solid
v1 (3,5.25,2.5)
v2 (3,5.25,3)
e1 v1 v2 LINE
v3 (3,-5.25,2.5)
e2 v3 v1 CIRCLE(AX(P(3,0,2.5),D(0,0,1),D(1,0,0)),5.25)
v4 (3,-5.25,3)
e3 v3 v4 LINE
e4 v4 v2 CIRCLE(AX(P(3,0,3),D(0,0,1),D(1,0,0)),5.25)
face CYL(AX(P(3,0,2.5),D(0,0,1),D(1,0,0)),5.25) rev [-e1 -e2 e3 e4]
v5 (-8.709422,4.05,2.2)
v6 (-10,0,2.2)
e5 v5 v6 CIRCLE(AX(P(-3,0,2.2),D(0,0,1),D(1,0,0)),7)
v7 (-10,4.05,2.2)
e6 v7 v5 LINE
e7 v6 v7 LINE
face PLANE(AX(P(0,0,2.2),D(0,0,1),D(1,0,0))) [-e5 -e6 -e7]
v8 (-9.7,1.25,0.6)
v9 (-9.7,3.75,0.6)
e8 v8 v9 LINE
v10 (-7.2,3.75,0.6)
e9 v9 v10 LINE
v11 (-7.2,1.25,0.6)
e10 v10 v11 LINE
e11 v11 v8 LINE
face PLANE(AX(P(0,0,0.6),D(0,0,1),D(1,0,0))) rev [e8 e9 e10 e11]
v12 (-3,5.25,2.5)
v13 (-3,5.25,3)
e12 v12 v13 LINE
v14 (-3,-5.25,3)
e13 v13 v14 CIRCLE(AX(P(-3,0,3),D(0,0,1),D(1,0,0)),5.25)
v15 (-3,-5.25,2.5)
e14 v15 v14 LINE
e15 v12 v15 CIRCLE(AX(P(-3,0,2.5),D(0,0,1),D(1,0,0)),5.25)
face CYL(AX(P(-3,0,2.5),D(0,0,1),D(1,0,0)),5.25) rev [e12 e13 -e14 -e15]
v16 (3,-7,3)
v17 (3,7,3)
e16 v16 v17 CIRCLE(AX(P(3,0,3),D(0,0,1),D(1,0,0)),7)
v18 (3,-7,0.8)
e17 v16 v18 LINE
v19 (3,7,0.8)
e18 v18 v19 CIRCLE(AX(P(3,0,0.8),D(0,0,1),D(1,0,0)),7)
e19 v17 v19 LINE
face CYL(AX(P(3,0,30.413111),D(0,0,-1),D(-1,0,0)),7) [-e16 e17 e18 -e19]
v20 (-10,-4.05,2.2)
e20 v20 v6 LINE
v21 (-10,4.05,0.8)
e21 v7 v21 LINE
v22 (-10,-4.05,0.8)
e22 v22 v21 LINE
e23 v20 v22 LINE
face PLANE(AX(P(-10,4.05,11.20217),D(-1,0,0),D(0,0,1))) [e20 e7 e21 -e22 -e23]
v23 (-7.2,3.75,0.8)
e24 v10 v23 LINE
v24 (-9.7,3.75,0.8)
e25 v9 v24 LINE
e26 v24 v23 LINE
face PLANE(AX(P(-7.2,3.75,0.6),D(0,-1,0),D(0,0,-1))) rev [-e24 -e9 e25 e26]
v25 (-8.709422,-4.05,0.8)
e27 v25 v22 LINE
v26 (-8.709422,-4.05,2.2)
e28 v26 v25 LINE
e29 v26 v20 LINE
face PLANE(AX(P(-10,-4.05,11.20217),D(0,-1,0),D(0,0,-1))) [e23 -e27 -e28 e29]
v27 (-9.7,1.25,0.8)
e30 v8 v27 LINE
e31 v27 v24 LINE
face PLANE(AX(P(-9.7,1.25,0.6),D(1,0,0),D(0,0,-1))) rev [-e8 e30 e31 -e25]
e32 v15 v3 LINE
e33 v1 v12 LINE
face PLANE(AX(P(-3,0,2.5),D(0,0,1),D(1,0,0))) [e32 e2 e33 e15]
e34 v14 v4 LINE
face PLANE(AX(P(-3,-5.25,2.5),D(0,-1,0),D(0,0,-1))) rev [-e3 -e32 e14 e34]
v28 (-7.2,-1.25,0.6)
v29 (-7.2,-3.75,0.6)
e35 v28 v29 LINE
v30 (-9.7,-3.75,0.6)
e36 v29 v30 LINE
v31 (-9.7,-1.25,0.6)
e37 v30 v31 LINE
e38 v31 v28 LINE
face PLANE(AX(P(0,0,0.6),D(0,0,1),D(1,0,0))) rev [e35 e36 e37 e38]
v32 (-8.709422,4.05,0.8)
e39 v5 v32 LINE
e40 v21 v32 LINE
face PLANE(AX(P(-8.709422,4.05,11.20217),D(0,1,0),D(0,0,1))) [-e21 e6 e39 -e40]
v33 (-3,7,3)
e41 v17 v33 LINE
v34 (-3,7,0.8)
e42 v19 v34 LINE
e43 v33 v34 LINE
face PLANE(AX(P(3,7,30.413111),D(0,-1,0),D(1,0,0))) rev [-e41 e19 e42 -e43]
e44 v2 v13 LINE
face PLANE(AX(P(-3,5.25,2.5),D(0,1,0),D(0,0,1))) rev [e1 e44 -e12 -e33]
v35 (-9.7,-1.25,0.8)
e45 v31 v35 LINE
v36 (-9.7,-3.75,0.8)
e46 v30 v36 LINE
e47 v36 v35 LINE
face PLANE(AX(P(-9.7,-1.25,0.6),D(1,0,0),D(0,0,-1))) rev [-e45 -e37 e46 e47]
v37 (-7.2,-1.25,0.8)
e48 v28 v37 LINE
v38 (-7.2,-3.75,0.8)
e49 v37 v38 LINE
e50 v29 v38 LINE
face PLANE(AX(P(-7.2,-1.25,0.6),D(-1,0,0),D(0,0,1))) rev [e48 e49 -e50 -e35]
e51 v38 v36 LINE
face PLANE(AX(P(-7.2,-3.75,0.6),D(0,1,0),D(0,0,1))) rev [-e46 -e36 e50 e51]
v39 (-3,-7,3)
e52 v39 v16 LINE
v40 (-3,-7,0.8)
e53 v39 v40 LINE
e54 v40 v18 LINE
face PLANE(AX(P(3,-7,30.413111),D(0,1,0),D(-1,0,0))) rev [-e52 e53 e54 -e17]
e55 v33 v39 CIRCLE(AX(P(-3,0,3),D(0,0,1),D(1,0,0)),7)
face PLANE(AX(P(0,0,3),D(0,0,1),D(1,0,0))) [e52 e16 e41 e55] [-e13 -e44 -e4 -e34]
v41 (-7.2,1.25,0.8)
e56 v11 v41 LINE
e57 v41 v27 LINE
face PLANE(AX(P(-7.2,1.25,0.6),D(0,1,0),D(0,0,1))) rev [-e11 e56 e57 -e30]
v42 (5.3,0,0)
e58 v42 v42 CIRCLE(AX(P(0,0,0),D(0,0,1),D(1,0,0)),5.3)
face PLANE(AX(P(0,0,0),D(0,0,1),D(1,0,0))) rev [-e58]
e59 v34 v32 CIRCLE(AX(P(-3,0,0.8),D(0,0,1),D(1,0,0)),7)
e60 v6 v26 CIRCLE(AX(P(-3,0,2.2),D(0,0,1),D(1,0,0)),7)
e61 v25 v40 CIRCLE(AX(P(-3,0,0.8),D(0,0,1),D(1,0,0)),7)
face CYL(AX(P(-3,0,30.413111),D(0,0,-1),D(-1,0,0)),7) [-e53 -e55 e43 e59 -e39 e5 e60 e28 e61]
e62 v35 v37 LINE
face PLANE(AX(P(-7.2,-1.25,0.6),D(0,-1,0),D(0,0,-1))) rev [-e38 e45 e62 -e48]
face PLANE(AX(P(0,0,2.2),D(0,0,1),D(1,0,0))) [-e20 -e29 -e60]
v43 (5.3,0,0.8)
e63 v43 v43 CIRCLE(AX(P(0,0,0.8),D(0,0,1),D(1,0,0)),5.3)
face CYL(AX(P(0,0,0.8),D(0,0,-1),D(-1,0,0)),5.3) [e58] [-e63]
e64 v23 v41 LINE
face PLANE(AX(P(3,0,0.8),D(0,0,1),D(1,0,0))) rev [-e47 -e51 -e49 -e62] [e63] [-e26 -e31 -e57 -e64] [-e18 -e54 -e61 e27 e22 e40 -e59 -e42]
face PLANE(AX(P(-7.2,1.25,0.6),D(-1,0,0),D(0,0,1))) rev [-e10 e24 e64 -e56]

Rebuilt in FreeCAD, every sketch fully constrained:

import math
import FreeCAD as App
import Part
import Sketcher

doc = App.newDocument("Part")
body = doc.addObject("PartDesign::Body", "Body")

sketch1 = body.newObject("Sketcher::SketchObject", "Sketch")
sketch1.AttachmentSupport = (doc.getObject("XY_Plane"), [""])
sketch1.MapMode = "FlatFace"
sketch1.addGeometry(Part.Circle(App.Vector(0, 0, 0), App.Vector(0, 0, 1), 5), False)
sketch1.addConstraint(Sketcher.Constraint("Coincident", 0, 3, -1, 1))
sketch1.addConstraint(Sketcher.Constraint("Diameter", 0, 10.6))
pad1 = body.newObject("PartDesign::Pad", "Pad")
pad1.Profile = sketch1
pad1.Length = 0.8

sketch2 = body.newObject("Sketcher::SketchObject", "Sketch001")
sketch2.AttachmentSupport = (doc.getObject("XY_Plane"), [""])
sketch2.MapMode = "FlatFace"
sketch2.AttachmentOffset = App.Placement(App.Vector(0, 0, 0.8), App.Rotation())
sketch2.addGeometry(Part.LineSegment(App.Vector(-3, -7, 0), App.Vector(3, -7, 0)), False)
sketch2.addGeometry(Part.ArcOfCircle(Part.Circle(App.Vector(3, 0, 0), App.Vector(0, 0, 1), 7), math.radians(-90), math.radians(90)), False)
sketch2.addGeometry(Part.LineSegment(App.Vector(3, 7, 0), App.Vector(-3, 7, 0)), False)
sketch2.addGeometry(Part.ArcOfCircle(Part.Circle(App.Vector(-3, 0, 0), App.Vector(0, 0, 1), 7), math.radians(90), math.radians(270)), False)
sketch2.addConstraint(Sketcher.Constraint("Tangent", 0, 2, 1, 1))
sketch2.addConstraint(Sketcher.Constraint("Tangent", 1, 2, 2, 1))
sketch2.addConstraint(Sketcher.Constraint("Tangent", 2, 2, 3, 1))
sketch2.addConstraint(Sketcher.Constraint("Tangent", 3, 2, 0, 1))
sketch2.addConstraint(Sketcher.Constraint("Horizontal", 0))
sketch2.addConstraint(Sketcher.Constraint("Horizontal", 2))
sketch2.addConstraint(Sketcher.Constraint("Symmetric", 1, 3, 3, 3, -1, 1))
sketch2.addConstraint(Sketcher.Constraint("Radius", 1, 7.0))
sketch2.addConstraint(Sketcher.Constraint("DistanceX", 0, 1, 0, 2, 6.0))
pad2 = body.newObject("PartDesign::Pad", "Pad001")
pad2.Profile = sketch2
pad2.Length = 2.2

sketch3 = body.newObject("Sketcher::SketchObject", "Sketch002")
sketch3.AttachmentSupport = (doc.getObject("XY_Plane"), [""])
sketch3.MapMode = "FlatFace"
sketch3.AttachmentOffset = App.Placement(App.Vector(0, 0, 3), App.Rotation())
sketch3.addGeometry(Part.LineSegment(App.Vector(3, 5, 0), App.Vector(-3, 5, 0)), False)
sketch3.addGeometry(Part.ArcOfCircle(Part.Circle(App.Vector(-3, 0, 0), App.Vector(0, 0, 1), 5), math.radians(90), math.radians(270)), False)
sketch3.addGeometry(Part.LineSegment(App.Vector(-3, -5, 0), App.Vector(3, -5, 0)), False)
sketch3.addGeometry(Part.ArcOfCircle(Part.Circle(App.Vector(3, 0, 0), App.Vector(0, 0, 1), 5), math.radians(-90), math.radians(90)), False)
sketch3.addConstraint(Sketcher.Constraint("Tangent", 0, 2, 1, 1))
sketch3.addConstraint(Sketcher.Constraint("Tangent", 1, 2, 2, 1))
sketch3.addConstraint(Sketcher.Constraint("Tangent", 2, 2, 3, 1))
sketch3.addConstraint(Sketcher.Constraint("Tangent", 3, 2, 0, 1))
sketch3.addConstraint(Sketcher.Constraint("Horizontal", 0))
sketch3.addConstraint(Sketcher.Constraint("Horizontal", 2))
sketch3.addConstraint(Sketcher.Constraint("Symmetric", 1, 3, 3, 3, -1, 1))
sketch3.addConstraint(Sketcher.Constraint("DistanceX", 0, 2, 0, 1, 6.0))
sketch3.addConstraint(Sketcher.Constraint("Radius", 1, 5.25))
pocket1 = body.newObject("PartDesign::Pocket", "Pocket")
pocket1.Profile = sketch3
pocket1.Length = 0.5

sketch4 = body.newObject("Sketcher::SketchObject", "Sketch003")
sketch4.AttachmentSupport = (doc.getObject("XY_Plane"), [""])
sketch4.MapMode = "FlatFace"
sketch4.AttachmentOffset = App.Placement(App.Vector(0, 0, 0.8), App.Rotation())
sketch4.addGeometry(Part.LineSegment(App.Vector(-8.7, 4, 0), App.Vector(-8.7, -4, 0)), False)
sketch4.addGeometry(Part.LineSegment(App.Vector(-8.7, -4, 0), App.Vector(-10, -4, 0)), False)
sketch4.addGeometry(Part.LineSegment(App.Vector(-10, -4, 0), App.Vector(-10, 4, 0)), False)
sketch4.addGeometry(Part.LineSegment(App.Vector(-10, 4, 0), App.Vector(-8.7, 4, 0)), False)
sketch4.addConstraint(Sketcher.Constraint("Coincident", 0, 2, 1, 1))
sketch4.addConstraint(Sketcher.Constraint("Coincident", 1, 2, 2, 1))
sketch4.addConstraint(Sketcher.Constraint("Coincident", 2, 2, 3, 1))
sketch4.addConstraint(Sketcher.Constraint("Coincident", 3, 2, 0, 1))
sketch4.addConstraint(Sketcher.Constraint("Vertical", 0))
sketch4.addConstraint(Sketcher.Constraint("Horizontal", 1))
sketch4.addConstraint(Sketcher.Constraint("Vertical", 2))
sketch4.addConstraint(Sketcher.Constraint("Horizontal", 3))
sketch4.addConstraint(Sketcher.Constraint("DistanceY", 0, 2, 0, 1, 8.1))
sketch4.addConstraint(Sketcher.Constraint("DistanceX", 1, 2, -1, 1, 10.0))
sketch4.addConstraint(Sketcher.Constraint("DistanceY", 0, 2, -1, 1, 4.05))
sketch4.addConstraint(Sketcher.Constraint("DistanceX", 1, 2, 1, 1, 1.290578))
pad3 = body.newObject("PartDesign::Pad", "Pad002")
pad3.Profile = sketch4
pad3.Length = 1.4

sketch5 = body.newObject("Sketcher::SketchObject", "Sketch004")
sketch5.AttachmentSupport = (doc.getObject("XY_Plane"), [""])
sketch5.MapMode = "FlatFace"
sketch5.AttachmentOffset = App.Placement(App.Vector(0, 0, 0.8), App.Rotation())
sketch5.addGeometry(Part.LineSegment(App.Vector(-7.2, 3.8, 0), App.Vector(-7.2, 1.2, 0)), False)
sketch5.addGeometry(Part.LineSegment(App.Vector(-7.2, 1.2, 0), App.Vector(-9.7, 1.2, 0)), False)
sketch5.addGeometry(Part.LineSegment(App.Vector(-9.7, 1.2, 0), App.Vector(-9.7, 3.8, 0)), False)
sketch5.addGeometry(Part.LineSegment(App.Vector(-9.7, 3.8, 0), App.Vector(-7.2, 3.8, 0)), False)
sketch5.addGeometry(Part.LineSegment(App.Vector(-7.2, -1.2, 0), App.Vector(-7.2, -3.8, 0)), False)
sketch5.addGeometry(Part.LineSegment(App.Vector(-7.2, -3.8, 0), App.Vector(-9.7, -3.8, 0)), False)
sketch5.addGeometry(Part.LineSegment(App.Vector(-9.7, -3.8, 0), App.Vector(-9.7, -1.2, 0)), False)
sketch5.addGeometry(Part.LineSegment(App.Vector(-9.7, -1.2, 0), App.Vector(-7.2, -1.2, 0)), False)
sketch5.addConstraint(Sketcher.Constraint("Coincident", 0, 2, 1, 1))
sketch5.addConstraint(Sketcher.Constraint("Coincident", 1, 2, 2, 1))
sketch5.addConstraint(Sketcher.Constraint("Coincident", 2, 2, 3, 1))
sketch5.addConstraint(Sketcher.Constraint("Coincident", 3, 2, 0, 1))
sketch5.addConstraint(Sketcher.Constraint("Coincident", 4, 2, 5, 1))
sketch5.addConstraint(Sketcher.Constraint("Coincident", 5, 2, 6, 1))
sketch5.addConstraint(Sketcher.Constraint("Coincident", 6, 2, 7, 1))
sketch5.addConstraint(Sketcher.Constraint("Coincident", 7, 2, 4, 1))
sketch5.addConstraint(Sketcher.Constraint("Vertical", 0))
sketch5.addConstraint(Sketcher.Constraint("Horizontal", 1))
sketch5.addConstraint(Sketcher.Constraint("Vertical", 2))
sketch5.addConstraint(Sketcher.Constraint("Horizontal", 3))
sketch5.addConstraint(Sketcher.Constraint("Vertical", 4))
sketch5.addConstraint(Sketcher.Constraint("Horizontal", 5))
sketch5.addConstraint(Sketcher.Constraint("Vertical", 6))
sketch5.addConstraint(Sketcher.Constraint("Horizontal", 7))
sketch5.addConstraint(Sketcher.Constraint("Symmetric", 3, 2, 4, 2, -1))
sketch5.addConstraint(Sketcher.Constraint("Symmetric", 1, 2, 6, 2, -1))
sketch5.addConstraint(Sketcher.Constraint("Equal", 7, 0))
sketch5.addConstraint(Sketcher.Constraint("DistanceX", 1, 2, 1, 1, 2.5))
sketch5.addConstraint(Sketcher.Constraint("DistanceY", 4, 2, 0, 2, 5.0))
sketch5.addConstraint(Sketcher.Constraint("DistanceX", 0, 2, -1, 1, 7.2))
pad4 = body.newObject("PartDesign::Pad", "Pad003")
pad4.Profile = sketch5
pad4.Length = 0.2
pad4.Reversed = True

doc.recompute()
